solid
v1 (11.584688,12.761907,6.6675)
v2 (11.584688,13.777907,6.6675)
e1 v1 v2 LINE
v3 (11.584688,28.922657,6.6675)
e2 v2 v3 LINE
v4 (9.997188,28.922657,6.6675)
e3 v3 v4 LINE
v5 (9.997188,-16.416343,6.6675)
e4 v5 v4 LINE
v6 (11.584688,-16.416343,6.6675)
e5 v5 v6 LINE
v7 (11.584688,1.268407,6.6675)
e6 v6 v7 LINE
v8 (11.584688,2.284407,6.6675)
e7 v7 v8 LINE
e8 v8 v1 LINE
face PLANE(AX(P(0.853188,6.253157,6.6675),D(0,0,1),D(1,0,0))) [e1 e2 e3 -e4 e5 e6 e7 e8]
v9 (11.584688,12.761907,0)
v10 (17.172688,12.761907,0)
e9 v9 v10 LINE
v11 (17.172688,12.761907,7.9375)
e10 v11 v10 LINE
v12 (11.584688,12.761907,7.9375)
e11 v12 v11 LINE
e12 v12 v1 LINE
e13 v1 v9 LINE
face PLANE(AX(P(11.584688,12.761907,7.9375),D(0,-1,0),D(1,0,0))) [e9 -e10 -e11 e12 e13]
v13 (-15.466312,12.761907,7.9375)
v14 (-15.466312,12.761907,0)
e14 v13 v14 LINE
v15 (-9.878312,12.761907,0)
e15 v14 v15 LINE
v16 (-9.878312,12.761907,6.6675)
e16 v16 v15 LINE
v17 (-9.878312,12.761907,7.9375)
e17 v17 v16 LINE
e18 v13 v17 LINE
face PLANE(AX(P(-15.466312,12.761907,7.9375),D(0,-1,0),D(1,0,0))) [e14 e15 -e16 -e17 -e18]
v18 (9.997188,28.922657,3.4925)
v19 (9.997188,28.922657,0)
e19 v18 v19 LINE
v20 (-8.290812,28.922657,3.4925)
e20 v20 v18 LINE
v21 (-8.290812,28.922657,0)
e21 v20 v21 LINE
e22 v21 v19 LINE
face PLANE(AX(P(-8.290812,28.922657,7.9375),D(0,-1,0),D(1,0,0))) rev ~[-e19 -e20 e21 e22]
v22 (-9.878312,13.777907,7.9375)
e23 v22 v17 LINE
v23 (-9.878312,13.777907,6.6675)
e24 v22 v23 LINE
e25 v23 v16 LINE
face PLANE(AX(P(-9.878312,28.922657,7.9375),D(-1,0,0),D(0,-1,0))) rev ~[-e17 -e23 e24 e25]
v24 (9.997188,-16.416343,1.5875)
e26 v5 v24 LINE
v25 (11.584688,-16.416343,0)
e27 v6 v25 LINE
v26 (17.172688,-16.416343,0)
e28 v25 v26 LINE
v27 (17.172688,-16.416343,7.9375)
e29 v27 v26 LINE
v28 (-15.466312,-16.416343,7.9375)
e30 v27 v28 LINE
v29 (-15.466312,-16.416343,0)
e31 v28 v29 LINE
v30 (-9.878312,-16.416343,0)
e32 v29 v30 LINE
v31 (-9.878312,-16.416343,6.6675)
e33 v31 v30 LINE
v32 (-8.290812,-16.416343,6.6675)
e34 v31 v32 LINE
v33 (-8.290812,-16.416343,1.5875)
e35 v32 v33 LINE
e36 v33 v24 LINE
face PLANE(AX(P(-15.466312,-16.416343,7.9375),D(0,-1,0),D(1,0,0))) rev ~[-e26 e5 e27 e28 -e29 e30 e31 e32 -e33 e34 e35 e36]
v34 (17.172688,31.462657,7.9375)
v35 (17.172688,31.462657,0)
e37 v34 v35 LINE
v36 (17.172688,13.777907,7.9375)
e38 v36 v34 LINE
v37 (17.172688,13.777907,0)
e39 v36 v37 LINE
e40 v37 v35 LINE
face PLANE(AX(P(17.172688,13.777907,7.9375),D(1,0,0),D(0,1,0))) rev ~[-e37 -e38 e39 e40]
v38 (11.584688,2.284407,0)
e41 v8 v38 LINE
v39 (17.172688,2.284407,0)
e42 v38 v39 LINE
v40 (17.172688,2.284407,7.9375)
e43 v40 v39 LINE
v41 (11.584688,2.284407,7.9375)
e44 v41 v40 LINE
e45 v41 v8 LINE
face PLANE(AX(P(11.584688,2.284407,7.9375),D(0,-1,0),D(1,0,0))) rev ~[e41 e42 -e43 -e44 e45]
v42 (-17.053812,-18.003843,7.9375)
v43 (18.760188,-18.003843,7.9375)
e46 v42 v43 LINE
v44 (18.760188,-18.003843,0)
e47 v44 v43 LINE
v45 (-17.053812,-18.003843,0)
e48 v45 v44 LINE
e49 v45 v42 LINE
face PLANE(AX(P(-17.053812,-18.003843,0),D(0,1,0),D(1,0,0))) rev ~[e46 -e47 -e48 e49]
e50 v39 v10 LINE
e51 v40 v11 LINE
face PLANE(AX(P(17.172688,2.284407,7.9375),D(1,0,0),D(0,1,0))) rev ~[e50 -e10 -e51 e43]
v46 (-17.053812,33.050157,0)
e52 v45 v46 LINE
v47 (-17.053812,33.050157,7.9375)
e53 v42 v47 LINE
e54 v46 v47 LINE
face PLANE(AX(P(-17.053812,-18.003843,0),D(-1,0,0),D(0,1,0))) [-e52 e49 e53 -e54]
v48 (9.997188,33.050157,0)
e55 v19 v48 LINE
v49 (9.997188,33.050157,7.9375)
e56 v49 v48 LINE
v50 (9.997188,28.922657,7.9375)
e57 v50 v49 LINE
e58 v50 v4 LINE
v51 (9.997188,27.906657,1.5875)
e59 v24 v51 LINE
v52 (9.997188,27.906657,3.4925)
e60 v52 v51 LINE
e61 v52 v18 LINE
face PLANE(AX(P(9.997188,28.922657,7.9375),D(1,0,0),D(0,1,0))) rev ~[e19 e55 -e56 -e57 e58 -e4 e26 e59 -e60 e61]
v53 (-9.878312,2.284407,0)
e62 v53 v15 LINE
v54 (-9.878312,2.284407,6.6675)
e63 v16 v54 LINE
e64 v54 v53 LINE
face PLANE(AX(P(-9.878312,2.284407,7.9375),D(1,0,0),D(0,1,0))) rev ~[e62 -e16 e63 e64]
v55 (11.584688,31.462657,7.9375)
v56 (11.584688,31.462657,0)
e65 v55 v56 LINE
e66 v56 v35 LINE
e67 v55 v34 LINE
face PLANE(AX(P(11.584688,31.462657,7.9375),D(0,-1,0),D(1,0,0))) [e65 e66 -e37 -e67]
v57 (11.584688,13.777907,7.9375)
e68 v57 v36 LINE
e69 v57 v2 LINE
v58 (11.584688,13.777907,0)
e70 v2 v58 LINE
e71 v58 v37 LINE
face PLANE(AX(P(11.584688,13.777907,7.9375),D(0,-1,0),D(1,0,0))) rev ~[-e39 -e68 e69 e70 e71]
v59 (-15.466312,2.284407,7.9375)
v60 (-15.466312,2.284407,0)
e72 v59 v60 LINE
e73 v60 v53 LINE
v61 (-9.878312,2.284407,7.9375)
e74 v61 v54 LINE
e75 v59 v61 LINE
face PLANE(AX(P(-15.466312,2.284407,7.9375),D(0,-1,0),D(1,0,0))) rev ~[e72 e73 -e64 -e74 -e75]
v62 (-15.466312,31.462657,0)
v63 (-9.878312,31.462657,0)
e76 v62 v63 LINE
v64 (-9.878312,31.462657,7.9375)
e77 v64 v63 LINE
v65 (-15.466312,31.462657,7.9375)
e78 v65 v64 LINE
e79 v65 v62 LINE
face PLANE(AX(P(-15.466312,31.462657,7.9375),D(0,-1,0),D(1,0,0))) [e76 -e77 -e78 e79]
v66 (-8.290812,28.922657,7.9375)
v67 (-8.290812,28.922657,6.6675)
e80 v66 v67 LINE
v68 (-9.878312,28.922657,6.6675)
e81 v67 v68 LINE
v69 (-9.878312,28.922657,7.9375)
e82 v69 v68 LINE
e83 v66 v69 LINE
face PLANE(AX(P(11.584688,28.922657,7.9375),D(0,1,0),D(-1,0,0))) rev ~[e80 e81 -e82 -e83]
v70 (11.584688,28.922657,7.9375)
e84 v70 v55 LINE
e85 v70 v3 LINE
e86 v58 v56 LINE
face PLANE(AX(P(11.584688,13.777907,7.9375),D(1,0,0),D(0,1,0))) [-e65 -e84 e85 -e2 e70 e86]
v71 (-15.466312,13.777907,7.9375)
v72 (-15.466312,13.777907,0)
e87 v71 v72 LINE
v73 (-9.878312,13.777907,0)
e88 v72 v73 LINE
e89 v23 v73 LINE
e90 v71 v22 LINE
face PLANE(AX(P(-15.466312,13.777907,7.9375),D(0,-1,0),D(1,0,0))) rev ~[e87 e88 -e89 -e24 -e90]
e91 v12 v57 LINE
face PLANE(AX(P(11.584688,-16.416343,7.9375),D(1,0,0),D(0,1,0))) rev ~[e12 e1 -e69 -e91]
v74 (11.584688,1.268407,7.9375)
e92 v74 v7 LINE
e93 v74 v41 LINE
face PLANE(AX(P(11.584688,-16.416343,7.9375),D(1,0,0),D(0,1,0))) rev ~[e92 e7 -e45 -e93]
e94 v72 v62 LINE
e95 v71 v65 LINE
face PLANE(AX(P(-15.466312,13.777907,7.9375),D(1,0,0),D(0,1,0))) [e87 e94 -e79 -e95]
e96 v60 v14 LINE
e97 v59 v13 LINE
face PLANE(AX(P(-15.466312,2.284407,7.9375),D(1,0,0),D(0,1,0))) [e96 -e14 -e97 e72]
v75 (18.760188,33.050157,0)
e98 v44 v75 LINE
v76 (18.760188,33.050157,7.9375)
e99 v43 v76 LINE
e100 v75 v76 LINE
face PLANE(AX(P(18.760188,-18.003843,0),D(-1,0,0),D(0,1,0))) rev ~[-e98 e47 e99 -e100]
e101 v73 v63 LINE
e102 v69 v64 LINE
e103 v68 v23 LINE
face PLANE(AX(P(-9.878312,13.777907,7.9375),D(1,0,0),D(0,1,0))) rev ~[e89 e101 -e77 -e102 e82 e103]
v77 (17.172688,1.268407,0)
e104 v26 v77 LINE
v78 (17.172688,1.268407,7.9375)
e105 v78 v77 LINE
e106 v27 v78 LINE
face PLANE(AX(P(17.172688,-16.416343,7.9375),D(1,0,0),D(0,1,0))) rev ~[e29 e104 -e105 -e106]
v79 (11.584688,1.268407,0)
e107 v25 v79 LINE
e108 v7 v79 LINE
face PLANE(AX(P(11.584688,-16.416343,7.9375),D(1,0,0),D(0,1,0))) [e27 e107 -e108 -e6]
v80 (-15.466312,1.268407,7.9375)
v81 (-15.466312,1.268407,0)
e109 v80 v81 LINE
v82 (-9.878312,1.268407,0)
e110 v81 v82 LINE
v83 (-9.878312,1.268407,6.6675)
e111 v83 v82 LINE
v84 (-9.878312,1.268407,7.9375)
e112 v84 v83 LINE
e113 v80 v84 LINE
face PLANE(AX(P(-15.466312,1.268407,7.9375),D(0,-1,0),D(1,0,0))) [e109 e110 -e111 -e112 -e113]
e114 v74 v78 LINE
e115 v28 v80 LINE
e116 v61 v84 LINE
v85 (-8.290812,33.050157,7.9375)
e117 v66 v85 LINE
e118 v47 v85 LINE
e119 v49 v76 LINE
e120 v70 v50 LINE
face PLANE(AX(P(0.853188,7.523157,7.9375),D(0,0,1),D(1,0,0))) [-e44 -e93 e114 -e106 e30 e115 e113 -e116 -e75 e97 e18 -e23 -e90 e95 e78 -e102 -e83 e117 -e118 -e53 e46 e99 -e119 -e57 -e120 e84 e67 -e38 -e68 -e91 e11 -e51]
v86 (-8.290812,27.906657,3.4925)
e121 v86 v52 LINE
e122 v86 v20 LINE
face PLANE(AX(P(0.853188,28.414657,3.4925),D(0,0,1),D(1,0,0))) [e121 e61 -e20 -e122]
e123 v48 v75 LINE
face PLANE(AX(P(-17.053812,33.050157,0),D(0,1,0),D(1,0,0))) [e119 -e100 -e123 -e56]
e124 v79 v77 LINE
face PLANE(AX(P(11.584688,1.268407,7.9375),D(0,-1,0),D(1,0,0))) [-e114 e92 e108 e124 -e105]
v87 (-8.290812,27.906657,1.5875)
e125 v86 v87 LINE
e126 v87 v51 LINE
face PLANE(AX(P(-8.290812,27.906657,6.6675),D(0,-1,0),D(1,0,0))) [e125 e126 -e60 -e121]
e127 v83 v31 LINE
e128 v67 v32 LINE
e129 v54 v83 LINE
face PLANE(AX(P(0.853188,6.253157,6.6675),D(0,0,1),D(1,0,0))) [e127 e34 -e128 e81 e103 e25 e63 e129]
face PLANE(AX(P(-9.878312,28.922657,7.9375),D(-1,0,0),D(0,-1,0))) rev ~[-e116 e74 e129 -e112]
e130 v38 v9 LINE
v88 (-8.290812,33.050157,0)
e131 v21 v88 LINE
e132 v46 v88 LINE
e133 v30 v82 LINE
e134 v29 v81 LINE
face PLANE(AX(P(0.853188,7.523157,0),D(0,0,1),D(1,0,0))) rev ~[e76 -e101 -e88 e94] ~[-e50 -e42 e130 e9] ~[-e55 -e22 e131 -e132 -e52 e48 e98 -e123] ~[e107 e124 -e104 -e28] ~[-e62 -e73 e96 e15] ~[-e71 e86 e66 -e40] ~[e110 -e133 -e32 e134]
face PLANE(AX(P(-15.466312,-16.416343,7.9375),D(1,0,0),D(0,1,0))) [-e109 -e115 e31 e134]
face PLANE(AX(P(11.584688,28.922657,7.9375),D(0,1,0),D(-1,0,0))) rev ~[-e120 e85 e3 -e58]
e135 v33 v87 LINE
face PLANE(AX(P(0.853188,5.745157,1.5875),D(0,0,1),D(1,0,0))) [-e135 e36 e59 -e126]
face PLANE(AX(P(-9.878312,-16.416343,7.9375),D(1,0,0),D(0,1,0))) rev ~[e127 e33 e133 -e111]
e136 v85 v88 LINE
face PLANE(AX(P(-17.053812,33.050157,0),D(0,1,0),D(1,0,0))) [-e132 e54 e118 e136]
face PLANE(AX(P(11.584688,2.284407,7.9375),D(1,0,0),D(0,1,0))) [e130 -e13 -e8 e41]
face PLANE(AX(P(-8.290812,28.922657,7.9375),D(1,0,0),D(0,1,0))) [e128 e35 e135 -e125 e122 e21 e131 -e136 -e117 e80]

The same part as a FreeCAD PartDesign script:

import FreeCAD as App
import Part
import Sketcher
Q = App.Units.Quantity

doc = App.newDocument("Part")
params = doc.addObject("Spreadsheet::Sheet", "Params")
for row, (alias, value) in enumerate([
    ("sketch1_width", "1.41 in"),
    ("sketch1_height", "2.01 in"),
    ("pad1_length", "0.3125 in"),
    ("sketch2_width", "0.22 in"),
    ("pocket1_length", "1 in"),
    ("sketch3_width", "0.845 in"),
    ("sketch3_height", "1.785 in"),
    ("pocket2_length", "0.05 in"),
    ("sketch4_width", "0.72 in"),
    ("sketch4_height", "1.745 in"),
    ("pocket3_length", "0.2 in"),
    ("sketch5_width", "0.72 in"),
    ("pocket4_length", "1 in"),
    ("sketch6_width", "0.72 in"),
    ("sketch6_height", "0.04 in"),
    ("pocket5_length", "0.125 in"),
], start=1):
    params.set(f"A{row}", alias)
    params.set(f"B{row}", "=" + value)
    params.setAlias(f"B{row}", alias)

body = doc.addObject("PartDesign::Body", "Body")

# Sketch on XY plane
sketch1 = doc.addObject("Sketcher::SketchObject", "Sketch")
body.addObject(sketch1)
sketch1.AttachmentSupport = (doc.XY_Plane, [""])
sketch1.MapMode = "FlatFace"
sketch1.addGeometry([
    Part.LineSegment(App.Vector(-17, 33, 0), App.Vector(-17, -18, 0)),
    Part.LineSegment(App.Vector(-17, -18, 0), App.Vector(19, -18, 0)),
    Part.LineSegment(App.Vector(19, -18, 0), App.Vector(19, 33, 0)),
    Part.LineSegment(App.Vector(19, 33, 0), App.Vector(-17, 33, 0)),
], False)
sketch1.addConstraint([
    Sketcher.Constraint("Coincident", 0, 2, 1, 1),
    Sketcher.Constraint("Coincident", 1, 2, 2, 1),
    Sketcher.Constraint("Coincident", 2, 2, 3, 1),
    Sketcher.Constraint("Coincident", 3, 2, 0, 1),
    Sketcher.Constraint("Vertical", 0),
    Sketcher.Constraint("Horizontal", 1),
    Sketcher.Constraint("Vertical", 2),
    Sketcher.Constraint("Horizontal", 3),
    Sketcher.Constraint("DistanceX", 1, 1, 1, 2, Q("1.41 in")),
    Sketcher.Constraint("DistanceY", 0, 2, 0, 1, Q("2.01 in")),
    Sketcher.Constraint("DistanceX", 0, 2, -1, 1, Q("17.053812 mm")),
    Sketcher.Constraint("DistanceY", 0, 2, -1, 1, Q("18.003843 mm")),
])
sketch1.setExpression("Constraints[8]", "Params.sketch1_width")
sketch1.setExpression("Constraints[9]", "Params.sketch1_height")
pad1 = doc.addObject("PartDesign::Pad", "Pad")
body.addObject(pad1)
pad1.Profile = sketch1
pad1.setExpression("Length", "Params.pad1_length")

# Sketch on XY plane
sketch2 = doc.addObject("Sketcher::SketchObject", "Sketch001")
body.addObject(sketch2)
sketch2.AttachmentSupport = (doc.XY_Plane, [""])
sketch2.MapMode = "FlatFace"
sketch2.AttachmentOffset = App.Placement(App.Vector(0, 0, 0.3125 * 25.4), App.Rotation())
sketch2.addGeometry([
    Part.LineSegment(App.Vector(-15, 31, 0), App.Vector(-15, 14, 0)),  # 0
    Part.LineSegment(App.Vector(-15, 14, 0), App.Vector(-10, 14, 0)),  # 1
    Part.LineSegment(App.Vector(-10, 14, 0), App.Vector(-10, 31, 0)),  # 2
    Part.LineSegment(App.Vector(-10, 31, 0), App.Vector(-15, 31, 0)),  # 3
    Part.LineSegment(App.Vector(-15, 13, 0), App.Vector(-15, 2, 0)),  # 4
    Part.LineSegment(App.Vector(-15, 2, 0), App.Vector(-10, 2, 0)),  # 5
    Part.LineSegment(App.Vector(-10, 2, 0), App.Vector(-10, 13, 0)),  # 6
    Part.LineSegment(App.Vector(-10, 13, 0), App.Vector(-15, 13, 0)),  # 7
    Part.LineSegment(App.Vector(-15, 1, 0), App.Vector(-15, -16, 0)),  # 8
    Part.LineSegment(App.Vector(-15, -16, 0), App.Vector(-10, -16, 0)),  # 9
    Part.LineSegment(App.Vector(-10, -16, 0), App.Vector(-10, 1, 0)),  # 10
    Part.LineSegment(App.Vector(-10, 1, 0), App.Vector(-15, 1, 0)),  # 11
    Part.LineSegment(App.Vector(12, 1, 0), App.Vector(12, -16, 0)),  # 12
    Part.LineSegment(App.Vector(12, -16, 0), App.Vector(17, -16, 0)),  # 13
    Part.LineSegment(App.Vector(17, -16, 0), App.Vector(17, 1, 0)),  # 14
    Part.LineSegment(App.Vector(17, 1, 0), App.Vector(12, 1, 0)),  # 15
    Part.LineSegment(App.Vector(12, 13, 0), App.Vector(12, 2, 0)),  # 16
    Part.LineSegment(App.Vector(12, 2, 0), App.Vector(17, 2, 0)),  # 17
    Part.LineSegment(App.Vector(17, 2, 0), App.Vector(17, 13, 0)),  # 18
    Part.LineSegment(App.Vector(17, 13, 0), App.Vector(12, 13, 0)),  # 19
    Part.LineSegment(App.Vector(12, 31, 0), App.Vector(12, 14, 0)),  # 20
    Part.LineSegment(App.Vector(12, 14, 0), App.Vector(17, 14, 0)),  # 21
    Part.LineSegment(App.Vector(17, 14, 0), App.Vector(17, 31, 0)),  # 22
    Part.LineSegment(App.Vector(17, 31, 0), App.Vector(12, 31, 0)),  # 23
], False)
sketch2.addConstraint([
    Sketcher.Constraint("Coincident", 0, 2, 1, 1),
    Sketcher.Constraint("Coincident", 1, 2, 2, 1),
    Sketcher.Constraint("Coincident", 2, 2, 3, 1),
    Sketcher.Constraint("Coincident", 3, 2, 0, 1),
    Sketcher.Constraint("Coincident", 4, 2, 5, 1),
    Sketcher.Constraint("Coincident", 5, 2, 6, 1),
    Sketcher.Constraint("Coincident", 6, 2, 7, 1),
    Sketcher.Constraint("Coincident", 7, 2, 4, 1),
    Sketcher.Constraint("Coincident", 8, 2, 9, 1),
    Sketcher.Constraint("Coincident", 9, 2, 10, 1),
    Sketcher.Constraint("Coincident", 10, 2, 11, 1),
    Sketcher.Constraint("Coincident", 11, 2, 8, 1),
    Sketcher.Constraint("Coincident", 12, 2, 13, 1),
    Sketcher.Constraint("Coincident", 13, 2, 14, 1),
    Sketcher.Constraint("Coincident", 14, 2, 15, 1),
    Sketcher.Constraint("Coincident", 15, 2, 12, 1),
    Sketcher.Constraint("Coincident", 16, 2, 17, 1),
    Sketcher.Constraint("Coincident", 17, 2, 18, 1),
    Sketcher.Constraint("Coincident", 18, 2, 19, 1),
    Sketcher.Constraint("Coincident", 19, 2, 16, 1),
    Sketcher.Constraint("Coincident", 20, 2, 21, 1),
    Sketcher.Constraint("Coincident", 21, 2, 22, 1),
    Sketcher.Constraint("Coincident", 22, 2, 23, 1),
    Sketcher.Constraint("Coincident", 23, 2, 20, 1),
    Sketcher.Constraint("Vertical", 0),
    Sketcher.Constraint("Horizontal", 1),
    Sketcher.Constraint("Vertical", 2),
    Sketcher.Constraint("Horizontal", 3),
    Sketcher.Constraint("Vertical", 4),
    Sketcher.Constraint("Horizontal", 5),
    Sketcher.Constraint("Vertical", 6),
    Sketcher.Constraint("Horizontal", 7),
    Sketcher.Constraint("Vertical", 8),
    Sketcher.Constraint("Horizontal", 9),
    Sketcher.Constraint("Vertical", 10),
    Sketcher.Constraint("Horizontal", 11),
    Sketcher.Constraint("Vertical", 12),
    Sketcher.Constraint("Horizontal", 13),
    Sketcher.Constraint("Vertical", 14),
    Sketcher.Constraint("Horizontal", 15),
    Sketcher.Constraint("Vertical", 16),
    Sketcher.Constraint("Horizontal", 17),
    Sketcher.Constraint("Vertical", 18),
    Sketcher.Constraint("Horizontal", 19),
    Sketcher.Constraint("Vertical", 20),
    Sketcher.Constraint("Horizontal", 21),
    Sketcher.Constraint("Vertical", 22),
    Sketcher.Constraint("Horizontal", 23),
    Sketcher.Constraint("Horizontal", 9, 2, 12, 2),
    Sketcher.Constraint("Horizontal", 11, 2, 14, 2),
    Sketcher.Constraint("Horizontal", 5, 2, 16, 2),
    Sketcher.Constraint("Horizontal", 7, 2, 18, 2),
    Sketcher.Constraint("Horizontal", 1, 2, 20, 2),
    Sketcher.Constraint("Horizontal", 3, 2, 22, 2),
    Sketcher.Constraint("Vertical", 3, 2, 4, 2),
    Sketcher.Constraint("Vertical", 2, 2, 5, 2),
    Sketcher.Constraint("Vertical", 7, 2, 8, 2),
    Sketcher.Constraint("Vertical", 6, 2, 9, 2),
    Sketcher.Constraint("Vertical", 15, 2, 16, 2),
    Sketcher.Constraint("Vertical", 14, 2, 17, 2),
    Sketcher.Constraint("Vertical", 19, 2, 20, 2),
    Sketcher.Constraint("Vertical", 18, 2, 21, 2),
    Sketcher.Constraint("Equal", 11, 13),
    Sketcher.Constraint("Equal", 2, 8),
    Sketcher.Constraint("DistanceX", 1, 1, 1, 2, Q("0.22 in")),
    Sketcher.Constraint("DistanceY", 6, 2, 1, 2, Q("0.04 in")),
    Sketcher.Constraint("DistanceY", 10, 2, 5, 2, Q("0.04 in")),
    Sketcher.Constraint("DistanceY", 4, 2, 4, 1, Q("0.4125 in")),
    Sketcher.Constraint("DistanceX", 9, 2, 12, 2, Q("0.845 in")),
    Sketcher.Constraint("DistanceY", 0, 2, 0, 1, Q("17.68475 mm")),
    Sketcher.Constraint("DistanceX", 1, 2, -1, 1, Q("9.878312 mm")),
    Sketcher.Constraint("DistanceY", -1, 1, 0, 2, Q("13.777907 mm")),
])
sketch2.setExpression("Constraints[64]", "Params.sketch2_width")
pocket1 = doc.addObject("PartDesign::Pocket", "Pocket")
body.addObject(pocket1)
pocket1.Profile = sketch2
pocket1.setExpression("Length", "Params.pocket1_length")

# Sketch on XY plane
sketch3 = doc.addObject("Sketcher::SketchObject", "Sketch002")
body.addObject(sketch3)
sketch3.AttachmentSupport = (doc.XY_Plane, [""])
sketch3.MapMode = "FlatFace"
sketch3.AttachmentOffset = App.Placement(App.Vector(0, 0, 0.3125 * 25.4), App.Rotation())
sketch3.addGeometry([
    Part.LineSegment(App.Vector(12, 29, 0), App.Vector(-10, 29, 0)),
    Part.LineSegment(App.Vector(-10, 29, 0), App.Vector(-10, -16, 0)),
    Part.LineSegment(App.Vector(-10, -16, 0), App.Vector(12, -16, 0)),
    Part.LineSegment(App.Vector(12, -16, 0), App.Vector(12, 29, 0)),
], False)
sketch3.addConstraint([
    Sketcher.Constraint("Coincident", 0, 2, 1, 1),
    Sketcher.Constraint("Coincident", 1, 2, 2, 1),
    Sketcher.Constraint("Coincident", 2, 2, 3, 1),
    Sketcher.Constraint("Coincident", 3, 2, 0, 1),
    Sketcher.Constraint("Horizontal", 0),
    Sketcher.Constraint("Vertical", 1),
    Sketcher.Constraint("Horizontal", 2),
    Sketcher.Constraint("Vertical", 3),
    Sketcher.Constraint("DistanceX", 0, 2, 0, 1, Q("0.845 in")),
    Sketcher.Constraint("DistanceY", 1, 2, 1, 1, Q("1.785 in")),
    Sketcher.Constraint("DistanceX", 0, 2, -1, 1, Q("9.878312 mm")),
    Sketcher.Constraint("DistanceY", -1, 1, 0, 2, Q("28.922657 mm")),
])
sketch3.setExpression("Constraints[8]", "Params.sketch3_width")
sketch3.setExpression("Constraints[9]", "Params.sketch3_height")
pocket2 = doc.addObject("PartDesign::Pocket", "Pocket001")
body.addObject(pocket2)
pocket2.Profile = sketch3
pocket2.setExpression("Length", "Params.pocket2_length")

# Sketch on XY plane
sketch4 = doc.addObject("Sketcher::SketchObject", "Sketch003")
body.addObject(sketch4)
sketch4.AttachmentSupport = (doc.XY_Plane, [""])
sketch4.MapMode = "FlatFace"
sketch4.AttachmentOffset = App.Placement(App.Vector(0, 0, 0.2625 * 25.4), App.Rotation())
sketch4.addGeometry([
    Part.LineSegment(App.Vector(-8, 28, 0), App.Vector(-8, -16, 0)),
    Part.LineSegment(App.Vector(-8, -16, 0), App.Vector(10, -16, 0)),
    Part.LineSegment(App.Vector(10, -16, 0), App.Vector(10, 28, 0)),
    Part.LineSegment(App.Vector(10, 28, 0), App.Vector(-8, 28, 0)),
], False)
sketch4.addConstraint([
    Sketcher.Constraint("Coincident", 0, 2, 1, 1),
    Sketcher.Constraint("Coincident", 1, 2, 2, 1),
    Sketcher.Constraint("Coincident", 2, 2, 3, 1),
    Sketcher.Constraint("Coincident", 3, 2, 0, 1),
    Sketcher.Constraint("Vertical", 0),
    Sketcher.Constraint("Horizontal", 1),
    Sketcher.Constraint("Vertical", 2),
    Sketcher.Constraint("Horizontal", 3),
    Sketcher.Constraint("DistanceX", 1, 1, 1, 2, Q("0.72 in")),
    Sketcher.Constraint("DistanceY", 0, 2, 0, 1, Q("1.745 in")),
    Sketcher.Constraint("DistanceX", 0, 2, -1, 1, Q("8.290812 mm")),
    Sketcher.Constraint("DistanceY", 0, 2, -1, 1, Q("16.416343 mm")),
])
sketch4.setExpression("Constraints[8]", "Params.sketch4_width")
sketch4.setExpression("Constraints[9]", "Params.sketch4_height")
pocket3 = doc.addObject("PartDesign::Pocket", "Pocket002")
body.addObject(pocket3)
pocket3.Profile = sketch4
pocket3.setExpression("Length", "Params.pocket3_length")

# Sketch on XY plane
sketch5 = doc.addObject("Sketcher::SketchObject", "Sketch004")
body.addObject(sketch5)
sketch5.AttachmentSupport = (doc.XY_Plane, [""])
sketch5.MapMode = "FlatFace"
sketch5.AttachmentOffset = App.Placement(App.Vector(0, 0, 0.3125 * 25.4), App.Rotation())
sketch5.addGeometry([
    Part.LineSegment(App.Vector(-8.3, 33.1, 0), App.Vector(-8.3, 28.9, 0)),
    Part.LineSegment(App.Vector(-8.3, 28.9, 0), App.Vector(10, 28.9, 0)),
    Part.LineSegment(App.Vector(10, 28.9, 0), App.Vector(10, 33.1, 0)),
    Part.LineSegment(App.Vector(10, 33.1, 0), App.Vector(-8.3, 33.1, 0)),
], False)
sketch5.addConstraint([
    Sketcher.Constraint("Coincident", 0, 2, 1, 1),
    Sketcher.Constraint("Coincident", 1, 2, 2, 1),
    Sketcher.Constraint("Coincident", 2, 2, 3, 1),
    Sketcher.Constraint("Coincident", 3, 2, 0, 1),
    Sketcher.Constraint("Vertical", 0),
    Sketcher.Constraint("Horizontal", 1),
    Sketcher.Constraint("Vertical", 2),
    Sketcher.Constraint("Horizontal", 3),
    Sketcher.Constraint("DistanceX", 1, 1, 1, 2, Q("0.72 in")),
    Sketcher.Constraint("DistanceY", 0, 2, 0, 1, Q("0.1625 in")),
    Sketcher.Constraint("DistanceX", 0, 2, -1, 1, Q("8.290812 mm")),
    Sketcher.Constraint("DistanceY", -1, 1, 0, 2, Q("28.922657 mm")),
])
sketch5.setExpression("Constraints[8]", "Params.sketch5_width")
pocket4 = doc.addObject("PartDesign::Pocket", "Pocket003")
body.addObject(pocket4)
pocket4.Profile = sketch5
pocket4.setExpression("Length", "Params.pocket4_length")

# Sketch on XY plane
sketch6 = doc.addObject("Sketcher::SketchObject", "Sketch005")
body.addObject(sketch6)
sketch6.AttachmentSupport = (doc.XY_Plane, [""])
sketch6.MapMode = "FlatFace"
sketch6.AttachmentOffset = App.Placement(App.Vector(0, 0, 0.2625 * 25.4), App.Rotation())
sketch6.addGeometry([
    Part.LineSegment(App.Vector(-8.3, 28.9, 0), App.Vector(-8.3, 27.9, 0)),
    Part.LineSegment(App.Vector(-8.3, 27.9, 0), App.Vector(10, 27.9, 0)),
    Part.LineSegment(App.Vector(10, 27.9, 0), App.Vector(10, 28.9, 0)),
    Part.LineSegment(App.Vector(10, 28.9, 0), App.Vector(-8.3, 28.9, 0)),
], False)
sketch6.addConstraint([
    Sketcher.Constraint("Coincident", 0, 2, 1, 1),
    Sketcher.Constraint("Coincident", 1, 2, 2, 1),
    Sketcher.Constraint("Coincident", 2, 2, 3, 1),
    Sketcher.Constraint("Coincident", 3, 2, 0, 1),
    Sketcher.Constraint("Vertical", 0),
    Sketcher.Constraint("Horizontal", 1),
    Sketcher.Constraint("Vertical", 2),
    Sketcher.Constraint("Horizontal", 3),
    Sketcher.Constraint("DistanceX", 1, 1, 1, 2, Q("0.72 in")),
    Sketcher.Constraint("DistanceY", 0, 2, 0, 1, Q("0.04 in")),
    Sketcher.Constraint("DistanceX", 0, 2, -1, 1, Q("8.290812 mm")),
    Sketcher.Constraint("DistanceY", -1, 1, 0, 2, Q("27.906657 mm")),
])
sketch6.setExpression("Constraints[8]", "Params.sketch6_width")
sketch6.setExpression("Constraints[9]", "Params.sketch6_height")
pocket5 = doc.addObject("PartDesign::Pocket", "Pocket004")
body.addObject(pocket5)
pocket5.Profile = sketch6
pocket5.setExpression("Length", "Params.pocket5_length")

doc.recompute()
